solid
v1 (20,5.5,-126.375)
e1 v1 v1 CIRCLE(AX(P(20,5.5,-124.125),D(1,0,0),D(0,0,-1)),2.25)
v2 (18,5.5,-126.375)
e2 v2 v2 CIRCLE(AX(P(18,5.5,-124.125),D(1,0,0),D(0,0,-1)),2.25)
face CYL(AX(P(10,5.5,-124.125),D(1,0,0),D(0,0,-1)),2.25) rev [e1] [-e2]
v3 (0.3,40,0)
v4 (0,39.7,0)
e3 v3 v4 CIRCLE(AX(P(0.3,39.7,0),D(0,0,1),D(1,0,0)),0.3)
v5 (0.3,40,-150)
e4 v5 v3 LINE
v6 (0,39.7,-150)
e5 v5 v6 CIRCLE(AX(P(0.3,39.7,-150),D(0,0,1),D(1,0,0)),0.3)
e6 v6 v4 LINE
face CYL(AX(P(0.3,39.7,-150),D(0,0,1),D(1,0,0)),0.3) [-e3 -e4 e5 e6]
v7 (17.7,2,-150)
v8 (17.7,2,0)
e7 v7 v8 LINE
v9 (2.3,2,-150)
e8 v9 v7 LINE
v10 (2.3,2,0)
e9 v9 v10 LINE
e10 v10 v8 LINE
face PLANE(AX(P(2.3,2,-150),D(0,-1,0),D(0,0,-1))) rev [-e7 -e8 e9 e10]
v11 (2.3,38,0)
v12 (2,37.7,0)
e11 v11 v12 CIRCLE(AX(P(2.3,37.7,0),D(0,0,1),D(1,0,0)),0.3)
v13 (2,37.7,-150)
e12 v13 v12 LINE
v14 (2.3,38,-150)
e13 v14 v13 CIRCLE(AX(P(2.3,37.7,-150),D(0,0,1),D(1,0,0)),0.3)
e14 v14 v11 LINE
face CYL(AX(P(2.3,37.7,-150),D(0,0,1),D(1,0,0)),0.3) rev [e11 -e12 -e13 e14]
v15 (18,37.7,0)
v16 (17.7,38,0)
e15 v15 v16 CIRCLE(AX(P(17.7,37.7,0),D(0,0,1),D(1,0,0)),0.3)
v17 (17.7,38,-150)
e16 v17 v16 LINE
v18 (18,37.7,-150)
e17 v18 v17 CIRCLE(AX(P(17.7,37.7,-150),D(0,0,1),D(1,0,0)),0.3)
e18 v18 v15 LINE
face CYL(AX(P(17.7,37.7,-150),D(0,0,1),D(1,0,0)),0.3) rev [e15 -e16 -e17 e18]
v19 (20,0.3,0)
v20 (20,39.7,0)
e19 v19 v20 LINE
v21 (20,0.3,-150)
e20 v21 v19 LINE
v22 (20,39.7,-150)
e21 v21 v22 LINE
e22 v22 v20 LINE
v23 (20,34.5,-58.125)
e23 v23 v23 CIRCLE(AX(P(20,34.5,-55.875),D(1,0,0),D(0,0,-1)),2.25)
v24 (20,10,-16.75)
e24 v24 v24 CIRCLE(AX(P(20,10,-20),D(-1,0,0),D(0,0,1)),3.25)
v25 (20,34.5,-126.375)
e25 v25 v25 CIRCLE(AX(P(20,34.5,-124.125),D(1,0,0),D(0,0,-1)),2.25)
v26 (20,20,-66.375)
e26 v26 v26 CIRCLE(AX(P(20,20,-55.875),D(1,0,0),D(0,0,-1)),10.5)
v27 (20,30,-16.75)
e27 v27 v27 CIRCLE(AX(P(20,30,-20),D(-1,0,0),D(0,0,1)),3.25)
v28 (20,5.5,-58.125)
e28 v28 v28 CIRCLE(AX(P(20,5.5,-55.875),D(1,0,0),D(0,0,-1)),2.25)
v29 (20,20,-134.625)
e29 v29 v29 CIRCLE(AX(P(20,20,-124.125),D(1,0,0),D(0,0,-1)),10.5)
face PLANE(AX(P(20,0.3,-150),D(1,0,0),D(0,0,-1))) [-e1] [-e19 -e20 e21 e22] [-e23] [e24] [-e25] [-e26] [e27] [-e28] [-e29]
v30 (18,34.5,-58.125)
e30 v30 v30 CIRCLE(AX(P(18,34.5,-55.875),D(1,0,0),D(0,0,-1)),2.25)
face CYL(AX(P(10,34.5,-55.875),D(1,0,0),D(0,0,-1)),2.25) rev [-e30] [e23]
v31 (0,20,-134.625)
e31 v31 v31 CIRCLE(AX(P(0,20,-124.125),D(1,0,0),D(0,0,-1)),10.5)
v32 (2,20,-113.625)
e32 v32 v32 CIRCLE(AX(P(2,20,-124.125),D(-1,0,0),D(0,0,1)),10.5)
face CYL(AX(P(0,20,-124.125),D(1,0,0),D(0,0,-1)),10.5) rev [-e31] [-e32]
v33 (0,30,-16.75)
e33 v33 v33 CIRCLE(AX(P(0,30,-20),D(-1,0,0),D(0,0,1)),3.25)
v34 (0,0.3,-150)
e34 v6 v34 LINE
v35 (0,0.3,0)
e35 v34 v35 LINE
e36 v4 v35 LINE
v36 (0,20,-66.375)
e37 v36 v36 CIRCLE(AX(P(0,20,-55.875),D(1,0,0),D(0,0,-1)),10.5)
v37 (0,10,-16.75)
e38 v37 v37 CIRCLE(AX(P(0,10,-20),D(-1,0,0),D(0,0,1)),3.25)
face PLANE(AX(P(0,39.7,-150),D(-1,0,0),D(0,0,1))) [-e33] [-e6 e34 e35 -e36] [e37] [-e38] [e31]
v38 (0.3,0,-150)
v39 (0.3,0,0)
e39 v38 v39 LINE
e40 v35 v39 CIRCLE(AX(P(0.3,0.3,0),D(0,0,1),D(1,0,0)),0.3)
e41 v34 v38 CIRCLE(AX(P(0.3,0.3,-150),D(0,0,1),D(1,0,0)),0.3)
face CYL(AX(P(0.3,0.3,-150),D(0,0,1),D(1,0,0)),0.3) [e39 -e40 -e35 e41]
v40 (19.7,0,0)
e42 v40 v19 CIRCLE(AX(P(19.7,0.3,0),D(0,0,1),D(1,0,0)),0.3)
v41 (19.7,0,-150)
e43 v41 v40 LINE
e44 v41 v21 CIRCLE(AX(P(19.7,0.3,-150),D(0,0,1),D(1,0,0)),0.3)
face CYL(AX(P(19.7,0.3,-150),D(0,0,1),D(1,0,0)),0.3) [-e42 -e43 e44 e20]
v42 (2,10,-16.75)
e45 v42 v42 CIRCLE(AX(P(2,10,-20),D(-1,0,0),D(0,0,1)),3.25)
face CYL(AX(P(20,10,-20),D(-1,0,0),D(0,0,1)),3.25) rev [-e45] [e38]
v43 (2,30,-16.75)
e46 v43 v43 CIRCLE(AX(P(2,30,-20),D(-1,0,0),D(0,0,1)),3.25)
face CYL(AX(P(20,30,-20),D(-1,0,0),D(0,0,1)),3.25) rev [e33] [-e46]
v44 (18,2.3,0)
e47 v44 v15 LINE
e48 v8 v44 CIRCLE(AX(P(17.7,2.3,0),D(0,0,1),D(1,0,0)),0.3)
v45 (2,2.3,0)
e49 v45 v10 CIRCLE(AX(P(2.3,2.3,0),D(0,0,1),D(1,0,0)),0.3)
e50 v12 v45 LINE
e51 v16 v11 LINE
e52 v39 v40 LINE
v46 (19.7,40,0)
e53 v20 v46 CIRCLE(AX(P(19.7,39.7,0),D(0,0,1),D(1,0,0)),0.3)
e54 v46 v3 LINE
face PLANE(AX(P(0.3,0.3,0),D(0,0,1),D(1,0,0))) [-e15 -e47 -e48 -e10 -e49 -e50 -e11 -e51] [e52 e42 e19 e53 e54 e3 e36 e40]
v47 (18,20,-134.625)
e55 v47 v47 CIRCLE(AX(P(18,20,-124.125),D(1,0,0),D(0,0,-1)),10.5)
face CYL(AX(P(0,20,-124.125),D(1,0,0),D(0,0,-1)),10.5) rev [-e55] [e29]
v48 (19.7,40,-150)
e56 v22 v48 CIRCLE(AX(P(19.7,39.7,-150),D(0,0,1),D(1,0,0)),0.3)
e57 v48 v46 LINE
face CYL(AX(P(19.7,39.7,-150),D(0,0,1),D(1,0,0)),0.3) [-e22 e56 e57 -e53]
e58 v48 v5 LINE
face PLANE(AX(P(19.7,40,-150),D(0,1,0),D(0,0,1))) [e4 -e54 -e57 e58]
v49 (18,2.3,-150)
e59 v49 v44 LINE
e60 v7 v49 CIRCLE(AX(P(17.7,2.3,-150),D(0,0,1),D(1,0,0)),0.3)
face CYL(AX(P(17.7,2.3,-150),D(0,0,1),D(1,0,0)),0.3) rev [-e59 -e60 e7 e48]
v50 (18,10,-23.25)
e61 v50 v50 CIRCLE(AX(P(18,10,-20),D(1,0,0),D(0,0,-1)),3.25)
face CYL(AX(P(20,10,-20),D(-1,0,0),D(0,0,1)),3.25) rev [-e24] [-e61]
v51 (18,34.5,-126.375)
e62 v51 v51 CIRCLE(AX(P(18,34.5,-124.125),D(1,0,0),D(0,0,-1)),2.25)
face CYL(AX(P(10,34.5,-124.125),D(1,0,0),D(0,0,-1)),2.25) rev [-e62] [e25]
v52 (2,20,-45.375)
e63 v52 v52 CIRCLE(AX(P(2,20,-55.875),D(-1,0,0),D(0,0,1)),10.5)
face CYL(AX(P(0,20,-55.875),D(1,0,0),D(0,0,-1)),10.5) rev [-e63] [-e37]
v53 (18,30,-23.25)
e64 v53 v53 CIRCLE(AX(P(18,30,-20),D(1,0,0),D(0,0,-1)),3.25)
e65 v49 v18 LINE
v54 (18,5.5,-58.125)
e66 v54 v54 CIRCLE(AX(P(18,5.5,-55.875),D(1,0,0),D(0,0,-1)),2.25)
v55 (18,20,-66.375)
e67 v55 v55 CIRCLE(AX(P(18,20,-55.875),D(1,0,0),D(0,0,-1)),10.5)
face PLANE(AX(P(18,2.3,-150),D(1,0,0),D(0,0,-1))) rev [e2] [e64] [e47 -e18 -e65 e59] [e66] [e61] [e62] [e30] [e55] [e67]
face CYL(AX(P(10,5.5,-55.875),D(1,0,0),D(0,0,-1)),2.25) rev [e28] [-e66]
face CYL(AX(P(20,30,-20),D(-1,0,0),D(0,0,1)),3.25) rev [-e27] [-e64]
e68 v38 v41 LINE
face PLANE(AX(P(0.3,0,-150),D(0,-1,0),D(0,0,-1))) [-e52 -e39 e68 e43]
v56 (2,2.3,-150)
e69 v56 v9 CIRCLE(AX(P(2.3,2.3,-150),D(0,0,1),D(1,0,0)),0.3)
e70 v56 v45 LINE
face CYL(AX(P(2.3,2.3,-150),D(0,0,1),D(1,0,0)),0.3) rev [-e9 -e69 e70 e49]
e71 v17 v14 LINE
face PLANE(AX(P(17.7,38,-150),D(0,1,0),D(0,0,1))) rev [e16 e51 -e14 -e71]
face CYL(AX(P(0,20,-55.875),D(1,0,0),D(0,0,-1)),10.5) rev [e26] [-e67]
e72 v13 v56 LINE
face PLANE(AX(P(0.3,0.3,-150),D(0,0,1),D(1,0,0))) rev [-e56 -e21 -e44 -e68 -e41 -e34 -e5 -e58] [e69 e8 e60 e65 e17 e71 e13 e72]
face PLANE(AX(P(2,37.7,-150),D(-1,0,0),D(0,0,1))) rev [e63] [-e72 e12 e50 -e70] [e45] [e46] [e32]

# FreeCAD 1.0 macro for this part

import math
import FreeCAD as App
import Part
import Sketcher
Q = App.Units.Quantity

doc = App.newDocument("Part")
body = doc.addObject("PartDesign::Body", "Body")

# Sketch on XY plane
sketch1 = doc.addObject("Sketcher::SketchObject", "Sketch")
body.addObject(sketch1)
sketch1.AttachmentSupport = (doc.XY_Plane, [""])
sketch1.MapMode = "FlatFace"
sketch1.addGeometry([
    Part.LineSegment(App.Vector(0.3, 0, 0), App.Vector(19.7, 0, 0)),  # 0
    Part.ArcOfCircle(Part.Circle(App.Vector(19.7, 0.3, 0), App.Vector(0, 0, 1), 0.3), math.radians(-90), math.radians(0)),  # 1
    Part.LineSegment(App.Vector(20, 0.3, 0), App.Vector(20, 39.7, 0)),  # 2
    Part.ArcOfCircle(Part.Circle(App.Vector(19.7, 39.7, 0), App.Vector(0, 0, 1), 0.3), math.radians(0), math.radians(90)),  # 3
    Part.LineSegment(App.Vector(19.7, 40, 0), App.Vector(0.3, 40, 0)),  # 4
    Part.ArcOfCircle(Part.Circle(App.Vector(0.3, 39.7, 0), App.Vector(0, 0, 1), 0.3), math.radians(90), math.radians(180)),  # 5
    Part.LineSegment(App.Vector(0, 39.7, 0), App.Vector(0, 0.3, 0)),  # 6
    Part.ArcOfCircle(Part.Circle(App.Vector(0.3, 0.3, 0), App.Vector(0, 0, 1), 0.3), math.radians(-180), math.radians(-90)),  # 7
    Part.LineSegment(App.Vector(17.7, 2, 0), App.Vector(2.3, 2, 0)),  # 8
    Part.ArcOfCircle(Part.Circle(App.Vector(2.3, 2.3, 0), App.Vector(0, 0, 1), 0.3), math.radians(-180), math.radians(-90)),  # 9
    Part.LineSegment(App.Vector(2, 2.3, 0), App.Vector(2, 37.7, 0)),  # 10
    Part.ArcOfCircle(Part.Circle(App.Vector(2.3, 37.7, 0), App.Vector(0, 0, 1), 0.3), math.radians(90), math.radians(180)),  # 11
    Part.LineSegment(App.Vector(2.3, 38, 0), App.Vector(17.7, 38, 0)),  # 12
    Part.ArcOfCircle(Part.Circle(App.Vector(17.7, 37.7, 0), App.Vector(0, 0, 1), 0.3), math.radians(0), math.radians(90)),  # 13
    Part.LineSegment(App.Vector(18, 37.7, 0), App.Vector(18, 2.3, 0)),  # 14
    Part.ArcOfCircle(Part.Circle(App.Vector(17.7, 2.3, 0), App.Vector(0, 0, 1), 0.3), math.radians(-90), math.radians(0)),  # 15
], False)
sketch1.addConstraint([
    Sketcher.Constraint("Tangent", 0, 2, 1, 1),
    Sketcher.Constraint("Tangent", 1, 2, 2, 1),
    Sketcher.Constraint("Tangent", 2, 2, 3, 1),
    Sketcher.Constraint("Tangent", 3, 2, 4, 1),
    Sketcher.Constraint("Tangent", 4, 2, 5, 1),
    Sketcher.Constraint("Tangent", 5, 2, 6, 1),
    Sketcher.Constraint("Tangent", 6, 2, 7, 1),
    Sketcher.Constraint("Tangent", 7, 2, 0, 1),
    Sketcher.Constraint("Tangent", 8, 2, 9, 2),
    Sketcher.Constraint("Tangent", 9, 1, 10, 1),
    Sketcher.Constraint("Tangent", 10, 2, 11, 2),
    Sketcher.Constraint("Tangent", 11, 1, 12, 1),
    Sketcher.Constraint("Tangent", 12, 2, 13, 2),
    Sketcher.Constraint("Tangent", 13, 1, 14, 1),
    Sketcher.Constraint("Tangent", 14, 2, 15, 2),
    Sketcher.Constraint("Tangent", 15, 1, 8, 1),
    Sketcher.Constraint("Horizontal", 0),
    Sketcher.Constraint("Vertical", 2),
    Sketcher.Constraint("Horizontal", 4),
    Sketcher.Constraint("Vertical", 6),
    Sketcher.Constraint("Horizontal", 8),
    Sketcher.Constraint("Vertical", 10),
    Sketcher.Constraint("Horizontal", 12),
    Sketcher.Constraint("Vertical", 14),
    Sketcher.Constraint("Equal", 1, 3),
    Sketcher.Constraint("Equal", 3, 5),
    Sketcher.Constraint("Equal", 5, 7),
    Sketcher.Constraint("Equal", 7, 9),
    Sketcher.Constraint("Equal", 9, 11),
    Sketcher.Constraint("Equal", 11, 13),
    Sketcher.Constraint("Equal", 13, 15),
    Sketcher.Constraint("PointOnObject", 0, 2, -1),
    Sketcher.Constraint("PointOnObject", 5, 2, -2),
    Sketcher.Constraint("Radius", 1, Q("0.3 mm")),
    Sketcher.Constraint("DistanceX", 0, 1, 0, 2, Q("19.4 mm")),
    Sketcher.Constraint("DistanceX", 8, 2, 8, 1, Q("15.4 mm")),
    Sketcher.Constraint("DistanceY", 2, 1, 2, 2, Q("39.4 mm")),
    Sketcher.Constraint("DistanceY", 10, 1, 10, 2, Q("35.4 mm")),
    Sketcher.Constraint("DistanceY", -1, 1, 8, 2, Q("2 mm")),
    Sketcher.Constraint("DistanceX", -1, 1, 9, 1, Q("2 mm")),
])
pad1 = doc.addObject("PartDesign::Pad", "Pad")
body.addObject(pad1)
pad1.Profile = sketch1
pad1.Length = 150
pad1.Reversed = True

# Sketch on YZ plane
sketch2 = doc.addObject("Sketcher::SketchObject", "Sketch001")
body.addObject(sketch2)
sketch2.AttachmentSupport = (doc.YZ_Plane, [""])
sketch2.MapMode = "FlatFace"
sketch2.addGeometry([
    Part.Circle(App.Vector(30, -20, 0), App.Vector(0, 0, 1), 3.25),
    Part.Circle(App.Vector(10, -20, 0), App.Vector(0, 0, 1), 3.25),
], False)
sketch2.addConstraint([
    Sketcher.Constraint("Equal", 0, 1),
    Sketcher.Constraint("Horizontal", 0, 3, 1, 3),
    Sketcher.Constraint("Diameter", 0, Q("6.5 mm")),
    Sketcher.Constraint("DistanceX", -1, 1, 0, 3, Q("30 mm")),
    Sketcher.Constraint("DistanceY", 0, 3, -1, 1, Q("20 mm")),
    Sketcher.Constraint("DistanceX", -1, 1, 1, 3, Q("10 mm")),
])
pocket1 = doc.addObject("PartDesign::Pocket", "Pocket")
body.addObject(pocket1)
pocket1.Profile = sketch2
pocket1.Type = "ThroughAll"
pocket1.Reversed = True

# Sketch on YZ plane
sketch3 = doc.addObject("Sketcher::SketchObject", "Sketch002")
body.addObject(sketch3)
sketch3.AttachmentSupport = (doc.YZ_Plane, [""])
sketch3.MapMode = "FlatFace"
sketch3.AttachmentOffset = App.Placement(App.Vector(0, 0, 20), App.Rotation())
sketch3.addGeometry(Part.Circle(App.Vector(20, -124.125, 0), App.Vector(0, 0, 1), 10.5), False)
sketch3.addConstraint([
    Sketcher.Constraint("Diameter", 0, Q("21 mm")),
    Sketcher.Constraint("DistanceX", -1, 1, 0, 3, Q("20 mm")),
    Sketcher.Constraint("DistanceY", 0, 3, -1, 1, Q("124.125 mm")),
])
pocket2 = doc.addObject("PartDesign::Pocket", "Pocket001")
body.addObject(pocket2)
pocket2.Profile = sketch3
pocket2.Type = "ThroughAll"

# Sketch on YZ plane
sketch4 = doc.addObject("Sketcher::SketchObject", "Sketch003")
body.addObject(sketch4)
sketch4.AttachmentSupport = (doc.YZ_Plane, [""])
sketch4.MapMode = "FlatFace"
sketch4.AttachmentOffset = App.Placement(App.Vector(0, 0, 20), App.Rotation())
sketch4.addGeometry(Part.Circle(App.Vector(20, -55.875, 0), App.Vector(0, 0, 1), 10.5), False)
sketch4.addConstraint([
    Sketcher.Constraint("Diameter", 0, Q("21 mm")),
    Sketcher.Constraint("DistanceX", -1, 1, 0, 3, Q("20 mm")),
    Sketcher.Constraint("DistanceY", 0, 3, -1, 1, Q("55.875 mm")),
])
pocket3 = doc.addObject("PartDesign::Pocket", "Pocket002")
body.addObject(pocket3)
pocket3.Profile = sketch4
pocket3.Type = "ThroughAll"

# Sketch on YZ plane
sketch5 = doc.addObject("Sketcher::SketchObject", "Sketch004")
body.addObject(sketch5)
sketch5.AttachmentSupport = (doc.YZ_Plane, [""])
sketch5.MapMode = "FlatFace"
sketch5.AttachmentOffset = App.Placement(App.Vector(0, 0, 20), App.Rotation())
sketch5.addGeometry(Part.Circle(App.Vector(5.5, -124.125, 0), App.Vector(0, 0, 1), 2.25), False)
sketch5.addConstraint([
    Sketcher.Constraint("Diameter", 0, Q("4.5 mm")),
    Sketcher.Constraint("DistanceX", -1, 1, 0, 3, Q("5.5 mm")),
    Sketcher.Constraint("DistanceY", 0, 3, -1, 1, Q("124.125 mm")),
])
pocket4 = doc.addObject("PartDesign::Pocket", "Pocket003")
body.addObject(pocket4)
pocket4.Profile = sketch5
pocket4.Length = 10

# Sketch on YZ plane
sketch6 = doc.addObject("Sketcher::SketchObject", "Sketch005")
body.addObject(sketch6)
sketch6.AttachmentSupport = (doc.YZ_Plane, [""])
sketch6.MapMode = "FlatFace"
sketch6.AttachmentOffset = App.Placement(App.Vector(0, 0, 20), App.Rotation())
sketch6.addGeometry([
    Part.Circle(App.Vector(34.5, -55.875, 0), App.Vector(0, 0, 1), 2.25),
    Part.Circle(App.Vector(5.5, -55.875, 0), App.Vector(0, 0, 1), 2.25),
    Part.Circle(App.Vector(5.5, -124.125, 0), App.Vector(0, 0, 1), 2.25),
    Part.Circle(App.Vector(34.5, -124.125, 0), App.Vector(0, 0, 1), 2.25),
], False)
sketch6.addConstraint([
    Sketcher.Constraint("Equal", 0, 1),
    Sketcher.Constraint("Equal", 1, 2),
    Sketcher.Constraint("Equal", 2, 3),
    Sketcher.Constraint("Horizontal", 0, 3, 1, 3),
    Sketcher.Constraint("Horizontal", 2, 3, 3, 3),
    Sketcher.Constraint("Vertical", 1, 3, 2, 3),
    Sketcher.Constraint("Vertical", 0, 3, 3, 3),
    Sketcher.Constraint("Diameter", 0, Q("4.5 mm")),
    Sketcher.Constraint("DistanceX", 1, 3, 0, 3, Q("29 mm")),
    Sketcher.Constraint("DistanceX", -1, 1, 0, 3, Q("34.5 mm")),
    Sketcher.Constraint("DistanceY", 2, 3, 1, 3, Q("68.25 mm")),
    Sketcher.Constraint("DistanceY", 0, 3, -1, 1, Q("55.875 mm")),
])
pocket5 = doc.addObject("PartDesign::Pocket", "Pocket004")
body.addObject(pocket5)
pocket5.Profile = sketch6
pocket5.Length = 10

doc.recompute()
